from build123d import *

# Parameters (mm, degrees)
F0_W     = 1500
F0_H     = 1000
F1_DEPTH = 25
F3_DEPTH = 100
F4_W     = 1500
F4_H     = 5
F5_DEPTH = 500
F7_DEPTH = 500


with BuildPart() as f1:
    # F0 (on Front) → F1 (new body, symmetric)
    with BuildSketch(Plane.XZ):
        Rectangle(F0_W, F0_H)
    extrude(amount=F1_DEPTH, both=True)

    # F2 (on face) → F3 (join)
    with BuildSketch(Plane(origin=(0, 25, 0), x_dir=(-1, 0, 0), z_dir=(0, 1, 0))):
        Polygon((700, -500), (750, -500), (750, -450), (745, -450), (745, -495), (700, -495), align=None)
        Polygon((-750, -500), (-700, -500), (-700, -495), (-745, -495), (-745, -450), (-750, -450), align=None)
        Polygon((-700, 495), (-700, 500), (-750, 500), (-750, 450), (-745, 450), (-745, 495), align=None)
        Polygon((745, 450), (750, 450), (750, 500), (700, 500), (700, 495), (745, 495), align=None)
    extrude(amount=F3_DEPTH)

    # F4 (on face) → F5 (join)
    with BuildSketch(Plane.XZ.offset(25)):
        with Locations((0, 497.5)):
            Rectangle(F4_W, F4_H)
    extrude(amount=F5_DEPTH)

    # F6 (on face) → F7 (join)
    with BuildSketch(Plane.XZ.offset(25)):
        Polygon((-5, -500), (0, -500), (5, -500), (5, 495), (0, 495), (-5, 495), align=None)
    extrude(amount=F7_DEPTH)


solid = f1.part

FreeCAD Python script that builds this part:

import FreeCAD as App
import Part
import Sketcher
from FreeCAD import Vector


def add_polygon(sketch, points):
    """Adds a closed chain of lines whose ends are joined by coincident constraints."""
    first, n = sketch.GeometryCount, len(points)
    for a, b in zip(points, points[1:] + points[:1]):
        sketch.addGeometry(Part.LineSegment(App.Vector(*a, 0), App.Vector(*b, 0)), False)
    for i in range(n):
        sketch.addConstraint(Sketcher.Constraint("Coincident", first + i, 2, first + (i + 1) % n, 1))

doc = App.newDocument("Part")
body = doc.addObject("PartDesign::Body", "Body")

# Sketch on XZ plane
sketch1 = doc.addObject("Sketcher::SketchObject", "Sketch")
body.addObject(sketch1)
sketch1.AttachmentSupport = (doc.XZ_Plane, [""])
sketch1.MapMode = "FlatFace"
add_polygon(sketch1, [(-750, 500), (-750, -500), (750, -500), (750, 500)])  # lines 0-3
sketch1.addConstraint(Sketcher.Constraint("Vertical", 0))
sketch1.addConstraint(Sketcher.Constraint("Horizontal", 1))
sketch1.addConstraint(Sketcher.Constraint("Vertical", 2))
sketch1.addConstraint(Sketcher.Constraint("Horizontal", 3))
sketch1.addConstraint(Sketcher.Constraint("Symmetric", 0, 2, 2, 2, -1, 1))
sketch1.addConstraint(Sketcher.Constraint("DistanceX", 1, 1, 1, 2, 1500.0))
sketch1.addConstraint(Sketcher.Constraint("DistanceY", 0, 2, 0, 1, 1000.0))
pad1 = doc.addObject("PartDesign::Pad", "Pad")
body.addObject(pad1)
pad1.Profile = sketch1
pad1.Length = 50
pad1.Midplane = True

# Sketch on XZ plane
sketch2 = doc.addObject("Sketcher::SketchObject", "Sketch001")
body.addObject(sketch2)
sketch2.AttachmentSupport = (doc.XZ_Plane, [""])
sketch2.MapMode = "FlatFace"
sketch2.AttachmentOffset = App.Placement(Vector(0, 0, -25), App.Rotation())
add_polygon(sketch2, [(-700, -500), (-750, -500), (-750, -450), (-745, -450), (-745, -495), (-700, -495)])  # lines 0-5
add_polygon(sketch2, [(750, -500), (700, -500), (700, -495), (745, -495), (745, -450), (750, -450)])  # lines 6-11
add_polygon(sketch2, [(700, 495), (700, 500), (750, 500), (750, 450), (745, 450), (745, 495)])  # lines 12-17
add_polygon(sketch2, [(-745, 450), (-750, 450), (-750, 500), (-700, 500), (-700, 495), (-745, 495)])  # lines 18-23
sketch2.addConstraint(Sketcher.Constraint("Horizontal", 0))
sketch2.addConstraint(Sketcher.Constraint("Vertical", 1))
sketch2.addConstraint(Sketcher.Constraint("Horizontal", 2))
sketch2.addConstraint(Sketcher.Constraint("Vertical", 3))
sketch2.addConstraint(Sketcher.Constraint("Horizontal", 4))
sketch2.addConstraint(Sketcher.Constraint("Vertical", 5))
sketch2.addConstraint(Sketcher.Constraint("Horizontal", 6))
sketch2.addConstraint(Sketcher.Constraint("Vertical", 7))
sketch2.addConstraint(Sketcher.Constraint("Horizontal", 8))
sketch2.addConstraint(Sketcher.Constraint("Vertical", 9))
sketch2.addConstraint(Sketcher.Constraint("Horizontal", 10))
sketch2.addConstraint(Sketcher.Constraint("Vertical", 11))
sketch2.addConstraint(Sketcher.Constraint("Vertical", 12))
sketch2.addConstraint(Sketcher.Constraint("Horizontal", 13))
sketch2.addConstraint(Sketcher.Constraint("Vertical", 14))
sketch2.addConstraint(Sketcher.Constraint("Horizontal", 15))
sketch2.addConstraint(Sketcher.Constraint("Vertical", 16))
sketch2.addConstraint(Sketcher.Constraint("Horizontal", 17))
sketch2.addConstraint(Sketcher.Constraint("Horizontal", 18))
sketch2.addConstraint(Sketcher.Constraint("Vertical", 19))
sketch2.addConstraint(Sketcher.Constraint("Horizontal", 20))
sketch2.addConstraint(Sketcher.Constraint("Vertical", 21))
sketch2.addConstraint(Sketcher.Constraint("Horizontal", 22))
sketch2.addConstraint(Sketcher.Constraint("Vertical", 23))
sketch2.addConstraint(Sketcher.Constraint("Symmetric", 5, 2, 12, 2, -1, 1))
sketch2.addConstraint(Sketcher.Constraint("Symmetric", 1, 2, 14, 2, -1, 1))
sketch2.addConstraint(Sketcher.Constraint("Symmetric", 3, 2, 16, 2, -1, 1))
sketch2.addConstraint(Sketcher.Constraint("Symmetric", 10, 2, 18, 2, -1, 1))
sketch2.addConstraint(Sketcher.Constraint("Symmetric", 6, 2, 20, 2, -1, 1))
sketch2.addConstraint(Sketcher.Constraint("Symmetric", 8, 2, 22, 2, -1, 1))
sketch2.addConstraint(Sketcher.Constraint("Symmetric", 5, 2, 6, 2, -2))
sketch2.addConstraint(Sketcher.Constraint("Symmetric", 3, 2, 8, 2, -2))
sketch2.addConstraint(Sketcher.Constraint("Symmetric", 1, 2, 10, 2, -2))
sketch2.addConstraint(Sketcher.Constraint("Equal", 20, 1))
sketch2.addConstraint(Sketcher.Constraint("Equal", 22, 3))
sketch2.addConstraint(Sketcher.Constraint("DistanceX", 0, 2, 0, 1, 50.0))
sketch2.addConstraint(Sketcher.Constraint("DistanceX", 2, 1, 2, 2, 5.0))
sketch2.addConstraint(Sketcher.Constraint("DistanceX", 0, 2, -1, 1, 750.0))
sketch2.addConstraint(Sketcher.Constraint("DistanceY", 0, 2, -1, 1, 500.0))
pad2 = doc.addObject("PartDesign::Pad", "Pad001")
body.addObject(pad2)
pad2.Profile = sketch2
pad2.Length = 100
pad2.Reversed = True

# Sketch on XZ plane
sketch3 = doc.addObject("Sketcher::SketchObject", "Sketch002")
body.addObject(sketch3)
sketch3.AttachmentSupport = (doc.XZ_Plane, [""])
sketch3.MapMode = "FlatFace"
sketch3.AttachmentOffset = App.Placement(Vector(0, 0, 25), App.Rotation())
add_polygon(sketch3, [(-750, 500), (-750, 495), (750, 495), (750, 500)])  # lines 0-3
sketch3.addConstraint(Sketcher.Constraint("Vertical", 0))
sketch3.addConstraint(Sketcher.Constraint("Horizontal", 1))
sketch3.addConstraint(Sketcher.Constraint("Vertical", 2))
sketch3.addConstraint(Sketcher.Constraint("Horizontal", 3))
sketch3.addConstraint(Sketcher.Constraint("DistanceX", 1, 1, 1, 2, 1500.0))
sketch3.addConstraint(Sketcher.Constraint("DistanceY", 0, 2, 0, 1, 5.0))
sketch3.addConstraint(Sketcher.Constraint("DistanceX", 0, 2, -1, 1, 750.0))
sketch3.addConstraint(Sketcher.Constraint("DistanceY", -1, 1, 0, 2, 495.0))
pad3 = doc.addObject("PartDesign::Pad", "Pad002")
body.addObject(pad3)
pad3.Profile = sketch3
pad3.Length = 500

# Sketch on XZ plane
sketch4 = doc.addObject("Sketcher::SketchObject", "Sketch003")
body.addObject(sketch4)
sketch4.AttachmentSupport = (doc.XZ_Plane, [""])
sketch4.MapMode = "FlatFace"
sketch4.AttachmentOffset = App.Placement(Vector(0, 0, 25), App.Rotation())
add_polygon(sketch4, [(-5, -500), (5, -500), (5, 495), (-5, 495)])  # lines 0-3
sketch4.addConstraint(Sketcher.Constraint("Horizontal", 0))
sketch4.addConstraint(Sketcher.Constraint("Vertical", 1))
sketch4.addConstraint(Sketcher.Constraint("Horizontal", 2))
sketch4.addConstraint(Sketcher.Constraint("Vertical", 3))
sketch4.addConstraint(Sketcher.Constraint("DistanceX", 0, 1, 0, 2, 10.0))
sketch4.addConstraint(Sketcher.Constraint("DistanceY", 1, 1, 1, 2, 995.0))
sketch4.addConstraint(Sketcher.Constraint("DistanceX", -1, 1, 0, 2, 5.0))
sketch4.addConstraint(Sketcher.Constraint("DistanceY", 0, 2, -1, 1, 500.0))
pad4 = doc.addObject("PartDesign::Pad", "Pad003")
body.addObject(pad4)
pad4.Profile = sketch4
pad4.Length = 500

doc.recompute()
